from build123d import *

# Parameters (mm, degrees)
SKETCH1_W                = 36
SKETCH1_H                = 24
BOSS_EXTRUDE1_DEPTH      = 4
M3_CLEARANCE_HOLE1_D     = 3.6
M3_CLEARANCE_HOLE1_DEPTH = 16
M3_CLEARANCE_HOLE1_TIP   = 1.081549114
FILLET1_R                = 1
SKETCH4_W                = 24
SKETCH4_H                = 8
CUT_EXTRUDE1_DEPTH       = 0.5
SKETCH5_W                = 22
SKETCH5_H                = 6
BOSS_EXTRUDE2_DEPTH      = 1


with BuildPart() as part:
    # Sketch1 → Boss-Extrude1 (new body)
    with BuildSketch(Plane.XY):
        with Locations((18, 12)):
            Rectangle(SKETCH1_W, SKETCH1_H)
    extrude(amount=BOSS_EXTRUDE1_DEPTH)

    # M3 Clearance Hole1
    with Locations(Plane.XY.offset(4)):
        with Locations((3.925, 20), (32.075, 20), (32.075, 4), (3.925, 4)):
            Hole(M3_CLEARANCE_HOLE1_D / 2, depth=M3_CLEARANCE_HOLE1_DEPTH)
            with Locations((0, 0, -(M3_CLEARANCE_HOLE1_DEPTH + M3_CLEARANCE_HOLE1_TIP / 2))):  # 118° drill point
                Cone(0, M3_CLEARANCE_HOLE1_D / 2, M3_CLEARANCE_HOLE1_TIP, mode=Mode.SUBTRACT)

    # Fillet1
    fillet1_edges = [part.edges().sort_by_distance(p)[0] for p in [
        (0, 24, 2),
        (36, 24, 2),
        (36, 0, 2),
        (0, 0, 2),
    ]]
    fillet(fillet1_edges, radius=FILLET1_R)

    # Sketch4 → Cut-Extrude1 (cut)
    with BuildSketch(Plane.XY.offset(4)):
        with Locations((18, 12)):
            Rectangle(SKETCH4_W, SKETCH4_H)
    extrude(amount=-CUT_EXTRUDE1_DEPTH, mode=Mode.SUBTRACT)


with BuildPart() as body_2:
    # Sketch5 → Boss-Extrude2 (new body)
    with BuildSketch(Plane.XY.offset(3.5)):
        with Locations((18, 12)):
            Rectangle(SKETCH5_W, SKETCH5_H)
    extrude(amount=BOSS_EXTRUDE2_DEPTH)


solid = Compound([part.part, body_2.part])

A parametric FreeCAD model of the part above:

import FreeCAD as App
import Part
import Sketcher

V = App.Vector


def edges_at(feature, points):
    """Names of the edges that pass closest to the given points."""
    edges = feature.Shape.Edges
    near = lambda p: min(range(len(edges)), key=lambda i: edges[i].distToShape(Part.Vertex(*p))[0])
    return sorted({f"Edge{near(p) + 1}" for p in points})

doc = App.newDocument("Part")
body = doc.addObject("PartDesign::Body", "Body")

sketch1 = doc.addObject("Sketcher::SketchObject", "Sketch")
body.addObject(sketch1)
sketch1.AttachmentSupport = (doc.XY_Plane, [""])
sketch1.MapMode = "FlatFace"
sketch1.addGeometry(Part.LineSegment(V(0, 24, 0), V(0, 0, 0)), False)
sketch1.addGeometry(Part.LineSegment(V(0, 0, 0), V(36, 0, 0)), False)
sketch1.addGeometry(Part.LineSegment(V(36, 0, 0), V(36, 24, 0)), False)
sketch1.addGeometry(Part.LineSegment(V(36, 24, 0), V(0, 24, 0)), False)
sketch1.addConstraint(Sketcher.Constraint("Coincident", 0, 2, 1, 1))
sketch1.addConstraint(Sketcher.Constraint("Coincident", 1, 2, 2, 1))
sketch1.addConstraint(Sketcher.Constraint("Coincident", 2, 2, 3, 1))
sketch1.addConstraint(Sketcher.Constraint("Coincident", 3, 2, 0, 1))
sketch1.addConstraint(Sketcher.Constraint("Vertical", 0))
sketch1.addConstraint(Sketcher.Constraint("Horizontal", 1))
sketch1.addConstraint(Sketcher.Constraint("Vertical", 2))
sketch1.addConstraint(Sketcher.Constraint("Horizontal", 3))
sketch1.addConstraint(Sketcher.Constraint("Coincident", 0, 2, -1, 1))
sketch1.addConstraint(Sketcher.Constraint("DistanceX", 1, 1, 1, 2, 36.0))
sketch1.addConstraint(Sketcher.Constraint("DistanceY", 0, 2, 0, 1, 24.0))
pad1 = doc.addObject("PartDesign::Pad", "Pad")
body.addObject(pad1)
pad1.Profile = sketch1
pad1.Length = 4

sketch2 = doc.addObject("Sketcher::SketchObject", "Sketch001")
body.addObject(sketch2)
sketch2.AttachmentSupport = (doc.XY_Plane, [""])
sketch2.MapMode = "FlatFace"
sketch2.AttachmentOffset = App.Placement(V(0, 0, 4), App.Rotation())
sketch2.addGeometry(Part.Circle(V(3.9, 20, 0), V(0, 0, 1), 1.8), False)
sketch2.addGeometry(Part.Circle(V(32.1, 20, 0), V(0, 0, 1), 1.8), False)
sketch2.addGeometry(Part.Circle(V(32.1, 4, 0), V(0, 0, 1), 1.8), False)
sketch2.addGeometry(Part.Circle(V(3.9, 4, 0), V(0, 0, 1), 1.8), False)
sketch2.addConstraint(Sketcher.Constraint("Equal", 0, 1))
sketch2.addConstraint(Sketcher.Constraint("Equal", 1, 2))
sketch2.addConstraint(Sketcher.Constraint("Equal", 2, 3))
sketch2.addConstraint(Sketcher.Constraint("Horizontal", 0, 3, 1, 3))
sketch2.addConstraint(Sketcher.Constraint("Horizontal", 2, 3, 3, 3))
sketch2.addConstraint(Sketcher.Constraint("Vertical", 1, 3, 2, 3))
sketch2.addConstraint(Sketcher.Constraint("Vertical", 0, 3, 3, 3))
sketch2.addConstraint(Sketcher.Constraint("Diameter", 0, 3.6))
sketch2.addConstraint(Sketcher.Constraint("DistanceY", -1, 1, 0, 3, 20.0))
sketch2.addConstraint(Sketcher.Constraint("DistanceY", -1, 1, 2, 3, 4.0))
sketch2.addConstraint(Sketcher.Constraint("DistanceX", 0, 3, 1, 3, 28.15))
sketch2.addConstraint(Sketcher.Constraint("DistanceX", -1, 1, 0, 3, 3.925))
doc.recompute()
hole = doc.addObject("PartDesign::Hole", "Hole")
body.addObject(hole)
hole.Profile = sketch2
hole.ThreadType = "None"
hole.Diameter = 3.6
hole.DepthType = "Dimension"
hole.Depth = 16
hole.DrillPoint = "Angled"
hole.DrillPointAngle = 118
doc.recompute()

fillet = doc.addObject("PartDesign::Fillet", "Fillet")
body.addObject(fillet)
fillet.Base = (hole, edges_at(hole, [
    (0, 24, 2),
    (36, 24, 2),
    (36, 0, 2),
    (0, 0, 2),
]))
fillet.Radius = 1

sketch3 = doc.addObject("Sketcher::SketchObject", "Sketch002")
body.addObject(sketch3)
sketch3.AttachmentSupport = (doc.XY_Plane, [""])
sketch3.MapMode = "FlatFace"
sketch3.AttachmentOffset = App.Placement(V(0, 0, 4), App.Rotation())
sketch3.addGeometry(Part.LineSegment(V(6, 16, 0), V(6, 8, 0)), False)
sketch3.addGeometry(Part.LineSegment(V(6, 8, 0), V(30, 8, 0)), False)
sketch3.addGeometry(Part.LineSegment(V(30, 8, 0), V(30, 16, 0)), False)
sketch3.addGeometry(Part.LineSegment(V(30, 16, 0), V(6, 16, 0)), False)
sketch3.addConstraint(Sketcher.Constraint("Coincident", 0, 2, 1, 1))
sketch3.addConstraint(Sketcher.Constraint("Coincident", 1, 2, 2, 1))
sketch3.addConstraint(Sketcher.Constraint("Coincident", 2, 2, 3, 1))
sketch3.addConstraint(Sketcher.Constraint("Coincident", 3, 2, 0, 1))
sketch3.addConstraint(Sketcher.Constraint("Vertical", 0))
sketch3.addConstraint(Sketcher.Constraint("Horizontal", 1))
sketch3.addConstraint(Sketcher.Constraint("Vertical", 2))
sketch3.addConstraint(Sketcher.Constraint("Horizontal", 3))
sketch3.addConstraint(Sketcher.Constraint("DistanceX", 1, 1, 1, 2, 24.0))
sketch3.addConstraint(Sketcher.Constraint("DistanceY", 0, 2, 0, 1, 8.0))
sketch3.addConstraint(Sketcher.Constraint("DistanceX", -1, 1, 0, 2, 6.0))
sketch3.addConstraint(Sketcher.Constraint("DistanceY", -1, 1, 0, 2, 8.0))
pocket1 = doc.addObject("PartDesign::Pocket", "Pocket")
body.addObject(pocket1)
pocket1.Profile = sketch3
pocket1.Length = 0.5
body2 = doc.addObject("PartDesign::Body", "Body001")

sketch4 = doc.addObject("Sketcher::SketchObject", "Sketch003")
body2.addObject(sketch4)
sketch4.AttachmentSupport = (doc.getObject("XY_Plane001"), [""])
sketch4.MapMode = "FlatFace"
sketch4.AttachmentOffset = App.Placement(V(0, 0, 3.5), App.Rotation())
sketch4.addGeometry(Part.LineSegment(V(7, 15, 0), V(7, 9, 0)), False)
sketch4.addGeometry(Part.LineSegment(V(7, 9, 0), V(29, 9, 0)), False)
sketch4.addGeometry(Part.LineSegment(V(29, 9, 0), V(29, 15, 0)), False)
sketch4.addGeometry(Part.LineSegment(V(29, 15, 0), V(7, 15, 0)), False)
sketch4.addConstraint(Sketcher.Constraint("Coincident", 0, 2, 1, 1))
sketch4.addConstraint(Sketcher.Constraint("Coincident", 1, 2, 2, 1))
sketch4.addConstraint(Sketcher.Constraint("Coincident", 2, 2, 3, 1))
sketch4.addConstraint(Sketcher.Constraint("Coincident", 3, 2, 0, 1))
sketch4.addConstraint(Sketcher.Constraint("Vertical", 0))
sketch4.addConstraint(Sketcher.Constraint("Horizontal", 1))
sketch4.addConstraint(Sketcher.Constraint("Vertical", 2))
sketch4.addConstraint(Sketcher.Constraint("Horizontal", 3))
sketch4.addConstraint(Sketcher.Constraint("DistanceX", 1, 1, 1, 2, 22.0))
sketch4.addConstraint(Sketcher.Constraint("DistanceY", 0, 2, 0, 1, 6.0))
sketch4.addConstraint(Sketcher.Constraint("DistanceX", -1, 1, 0, 2, 7.0))
sketch4.addConstraint(Sketcher.Constraint("DistanceY", -1, 1, 0, 2, 9.0))
pad2 = doc.addObject("PartDesign::Pad", "Pad001")
body2.addObject(pad2)
pad2.Profile = sketch4
pad2.Length = 1

doc.recompute()
